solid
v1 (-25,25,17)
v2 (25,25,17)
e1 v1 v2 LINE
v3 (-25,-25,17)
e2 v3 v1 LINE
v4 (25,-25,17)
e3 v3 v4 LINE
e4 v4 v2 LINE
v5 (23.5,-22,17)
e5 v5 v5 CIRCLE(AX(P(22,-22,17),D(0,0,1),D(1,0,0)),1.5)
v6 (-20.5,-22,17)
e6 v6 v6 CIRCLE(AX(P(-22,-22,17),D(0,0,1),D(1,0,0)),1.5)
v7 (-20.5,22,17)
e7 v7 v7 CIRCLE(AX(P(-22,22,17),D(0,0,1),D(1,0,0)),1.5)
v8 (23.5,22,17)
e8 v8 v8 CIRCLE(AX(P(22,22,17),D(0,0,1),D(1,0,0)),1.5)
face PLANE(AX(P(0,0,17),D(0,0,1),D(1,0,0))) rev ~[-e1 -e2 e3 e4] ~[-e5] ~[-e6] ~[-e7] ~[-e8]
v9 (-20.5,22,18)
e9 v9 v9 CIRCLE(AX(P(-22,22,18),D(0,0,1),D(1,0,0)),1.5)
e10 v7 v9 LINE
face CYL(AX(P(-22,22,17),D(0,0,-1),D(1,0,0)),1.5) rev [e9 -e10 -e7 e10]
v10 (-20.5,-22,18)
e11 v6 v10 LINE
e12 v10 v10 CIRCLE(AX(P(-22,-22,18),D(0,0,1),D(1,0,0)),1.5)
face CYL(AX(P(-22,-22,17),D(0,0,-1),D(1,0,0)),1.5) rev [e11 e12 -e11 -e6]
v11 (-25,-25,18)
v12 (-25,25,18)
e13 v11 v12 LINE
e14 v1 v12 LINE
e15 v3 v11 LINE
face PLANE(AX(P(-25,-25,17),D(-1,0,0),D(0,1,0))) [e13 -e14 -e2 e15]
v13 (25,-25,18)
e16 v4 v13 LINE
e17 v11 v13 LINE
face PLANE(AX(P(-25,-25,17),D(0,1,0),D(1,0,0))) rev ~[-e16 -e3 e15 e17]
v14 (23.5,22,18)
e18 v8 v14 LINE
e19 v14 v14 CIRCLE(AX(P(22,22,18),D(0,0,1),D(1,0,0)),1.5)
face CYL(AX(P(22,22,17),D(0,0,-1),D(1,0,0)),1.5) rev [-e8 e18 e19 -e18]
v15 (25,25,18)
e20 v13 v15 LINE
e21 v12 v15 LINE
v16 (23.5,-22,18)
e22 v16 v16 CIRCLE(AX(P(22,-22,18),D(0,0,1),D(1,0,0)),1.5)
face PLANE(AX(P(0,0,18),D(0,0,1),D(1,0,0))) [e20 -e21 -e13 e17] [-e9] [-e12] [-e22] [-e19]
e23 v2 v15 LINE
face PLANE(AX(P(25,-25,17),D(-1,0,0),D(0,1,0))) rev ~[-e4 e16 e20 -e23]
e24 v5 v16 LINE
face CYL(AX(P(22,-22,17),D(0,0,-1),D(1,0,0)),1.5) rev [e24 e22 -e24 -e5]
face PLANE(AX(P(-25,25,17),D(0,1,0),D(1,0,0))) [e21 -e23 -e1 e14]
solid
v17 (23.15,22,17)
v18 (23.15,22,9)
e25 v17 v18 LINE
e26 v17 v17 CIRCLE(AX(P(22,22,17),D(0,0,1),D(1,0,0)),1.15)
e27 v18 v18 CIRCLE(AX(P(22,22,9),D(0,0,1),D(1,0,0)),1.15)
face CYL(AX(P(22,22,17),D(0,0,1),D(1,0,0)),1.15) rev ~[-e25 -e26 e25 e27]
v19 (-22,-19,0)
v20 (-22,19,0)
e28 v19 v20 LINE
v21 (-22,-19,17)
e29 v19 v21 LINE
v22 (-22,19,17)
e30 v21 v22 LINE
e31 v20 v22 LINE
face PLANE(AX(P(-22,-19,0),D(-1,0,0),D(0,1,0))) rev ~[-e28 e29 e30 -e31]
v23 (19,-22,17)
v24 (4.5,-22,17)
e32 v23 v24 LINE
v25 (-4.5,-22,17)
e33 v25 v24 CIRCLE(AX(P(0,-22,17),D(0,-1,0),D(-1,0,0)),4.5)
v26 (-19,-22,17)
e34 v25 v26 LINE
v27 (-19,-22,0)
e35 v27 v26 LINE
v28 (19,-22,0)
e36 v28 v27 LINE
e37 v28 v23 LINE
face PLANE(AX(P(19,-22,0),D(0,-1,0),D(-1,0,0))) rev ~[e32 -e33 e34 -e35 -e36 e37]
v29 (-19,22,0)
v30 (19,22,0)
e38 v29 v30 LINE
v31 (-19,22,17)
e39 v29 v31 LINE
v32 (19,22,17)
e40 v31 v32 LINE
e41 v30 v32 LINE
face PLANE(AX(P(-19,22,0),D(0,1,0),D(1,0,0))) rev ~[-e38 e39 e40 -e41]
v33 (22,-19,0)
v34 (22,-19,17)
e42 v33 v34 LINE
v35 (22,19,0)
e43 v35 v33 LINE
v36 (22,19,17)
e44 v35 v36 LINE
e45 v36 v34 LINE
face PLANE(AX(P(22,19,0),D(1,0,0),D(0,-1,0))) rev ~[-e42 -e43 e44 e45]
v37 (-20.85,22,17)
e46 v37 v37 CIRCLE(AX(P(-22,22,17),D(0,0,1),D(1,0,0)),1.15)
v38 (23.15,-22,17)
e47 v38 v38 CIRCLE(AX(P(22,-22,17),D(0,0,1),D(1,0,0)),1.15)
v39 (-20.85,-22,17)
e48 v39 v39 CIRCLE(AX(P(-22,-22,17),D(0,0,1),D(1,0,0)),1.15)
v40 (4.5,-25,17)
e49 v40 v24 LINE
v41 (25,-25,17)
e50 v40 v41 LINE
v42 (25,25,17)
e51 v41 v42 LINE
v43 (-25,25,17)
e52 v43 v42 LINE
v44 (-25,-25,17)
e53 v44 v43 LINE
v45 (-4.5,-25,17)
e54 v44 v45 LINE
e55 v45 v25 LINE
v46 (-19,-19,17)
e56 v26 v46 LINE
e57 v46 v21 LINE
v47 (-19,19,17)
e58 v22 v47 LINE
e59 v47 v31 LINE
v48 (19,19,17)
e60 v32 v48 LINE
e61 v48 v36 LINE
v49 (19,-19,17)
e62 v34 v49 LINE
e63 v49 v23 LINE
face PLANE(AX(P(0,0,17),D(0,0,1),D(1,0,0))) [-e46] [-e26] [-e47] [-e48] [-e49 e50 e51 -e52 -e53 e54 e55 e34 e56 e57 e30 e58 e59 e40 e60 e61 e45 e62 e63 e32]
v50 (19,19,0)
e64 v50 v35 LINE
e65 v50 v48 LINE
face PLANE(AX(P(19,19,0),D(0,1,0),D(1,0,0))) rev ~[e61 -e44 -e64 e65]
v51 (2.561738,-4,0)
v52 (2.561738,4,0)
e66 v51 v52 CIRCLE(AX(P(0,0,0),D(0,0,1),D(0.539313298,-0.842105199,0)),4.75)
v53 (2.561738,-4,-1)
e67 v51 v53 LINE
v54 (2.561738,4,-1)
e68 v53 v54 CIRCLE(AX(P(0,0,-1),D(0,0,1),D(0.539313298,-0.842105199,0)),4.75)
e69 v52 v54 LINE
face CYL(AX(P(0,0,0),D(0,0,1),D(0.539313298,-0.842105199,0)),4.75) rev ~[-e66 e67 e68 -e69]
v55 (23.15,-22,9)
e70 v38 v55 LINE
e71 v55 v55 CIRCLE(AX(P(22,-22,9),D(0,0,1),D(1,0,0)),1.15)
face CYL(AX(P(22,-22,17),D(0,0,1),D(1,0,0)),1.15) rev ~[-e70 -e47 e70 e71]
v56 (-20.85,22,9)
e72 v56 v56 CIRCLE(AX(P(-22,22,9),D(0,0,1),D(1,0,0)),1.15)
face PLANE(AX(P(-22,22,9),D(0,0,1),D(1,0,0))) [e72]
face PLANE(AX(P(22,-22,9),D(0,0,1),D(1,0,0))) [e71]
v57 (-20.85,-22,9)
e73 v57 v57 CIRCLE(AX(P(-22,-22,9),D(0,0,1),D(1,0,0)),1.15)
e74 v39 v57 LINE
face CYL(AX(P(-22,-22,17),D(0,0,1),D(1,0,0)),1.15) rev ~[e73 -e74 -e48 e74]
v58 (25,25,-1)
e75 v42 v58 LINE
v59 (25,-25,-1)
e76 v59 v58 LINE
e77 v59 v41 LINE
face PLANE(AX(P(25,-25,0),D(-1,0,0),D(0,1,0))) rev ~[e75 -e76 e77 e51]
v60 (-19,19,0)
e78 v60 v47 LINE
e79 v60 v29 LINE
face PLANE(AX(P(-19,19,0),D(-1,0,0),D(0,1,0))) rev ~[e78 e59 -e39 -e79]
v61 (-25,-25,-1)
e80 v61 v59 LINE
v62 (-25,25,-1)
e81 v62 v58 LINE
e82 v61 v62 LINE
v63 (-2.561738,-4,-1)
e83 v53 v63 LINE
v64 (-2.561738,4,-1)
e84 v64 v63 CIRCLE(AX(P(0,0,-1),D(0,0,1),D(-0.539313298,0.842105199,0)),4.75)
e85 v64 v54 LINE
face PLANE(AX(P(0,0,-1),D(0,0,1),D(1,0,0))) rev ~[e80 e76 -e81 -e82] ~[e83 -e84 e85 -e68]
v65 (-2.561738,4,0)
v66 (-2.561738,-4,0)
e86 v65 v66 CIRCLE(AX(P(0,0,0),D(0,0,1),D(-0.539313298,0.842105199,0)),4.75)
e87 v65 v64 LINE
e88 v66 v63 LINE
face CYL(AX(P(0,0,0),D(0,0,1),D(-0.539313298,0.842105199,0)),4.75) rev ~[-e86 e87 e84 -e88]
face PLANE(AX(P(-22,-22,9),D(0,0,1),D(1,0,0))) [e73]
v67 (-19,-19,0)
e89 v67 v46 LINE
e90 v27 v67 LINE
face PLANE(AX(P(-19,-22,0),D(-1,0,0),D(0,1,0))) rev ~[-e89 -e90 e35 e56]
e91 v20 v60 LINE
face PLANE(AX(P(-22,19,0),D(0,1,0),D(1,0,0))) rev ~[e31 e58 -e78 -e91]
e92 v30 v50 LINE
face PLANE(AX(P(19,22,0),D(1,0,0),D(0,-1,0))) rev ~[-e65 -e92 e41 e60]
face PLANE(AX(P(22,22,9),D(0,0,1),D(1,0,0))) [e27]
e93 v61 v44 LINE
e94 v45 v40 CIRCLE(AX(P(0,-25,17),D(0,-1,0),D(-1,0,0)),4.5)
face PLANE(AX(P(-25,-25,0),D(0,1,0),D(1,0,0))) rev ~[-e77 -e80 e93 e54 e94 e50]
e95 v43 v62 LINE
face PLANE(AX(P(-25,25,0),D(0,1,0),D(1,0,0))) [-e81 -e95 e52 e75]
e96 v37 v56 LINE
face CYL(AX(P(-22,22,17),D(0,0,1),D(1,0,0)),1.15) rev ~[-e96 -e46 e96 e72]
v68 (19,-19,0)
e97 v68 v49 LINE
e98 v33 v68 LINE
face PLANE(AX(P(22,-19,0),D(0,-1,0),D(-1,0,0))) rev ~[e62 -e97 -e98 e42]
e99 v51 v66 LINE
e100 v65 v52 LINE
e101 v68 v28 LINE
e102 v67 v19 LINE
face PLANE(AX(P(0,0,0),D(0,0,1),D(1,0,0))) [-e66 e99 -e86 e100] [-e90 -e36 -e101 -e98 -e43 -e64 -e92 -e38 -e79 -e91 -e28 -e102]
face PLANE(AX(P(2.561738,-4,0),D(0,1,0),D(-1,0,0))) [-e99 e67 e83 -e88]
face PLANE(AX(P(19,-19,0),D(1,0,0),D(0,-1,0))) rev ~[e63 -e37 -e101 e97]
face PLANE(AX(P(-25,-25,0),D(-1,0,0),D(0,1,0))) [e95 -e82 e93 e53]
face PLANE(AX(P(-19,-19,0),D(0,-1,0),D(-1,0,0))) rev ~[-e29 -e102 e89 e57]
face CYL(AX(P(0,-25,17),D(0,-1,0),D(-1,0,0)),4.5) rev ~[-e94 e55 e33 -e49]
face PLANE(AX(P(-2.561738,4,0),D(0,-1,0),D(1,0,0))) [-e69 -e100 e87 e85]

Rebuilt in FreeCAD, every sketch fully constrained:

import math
import FreeCAD as App
import Part
import Sketcher

V = App.Vector
Q = App.Units.Quantity

doc = App.newDocument("Part")
body = doc.addObject("PartDesign::Body", "Body")

sketch1 = body.newObject("Sketcher::SketchObject", "Sketch")
sketch1.AttachmentSupport = (doc.getObject("XY_Plane"), [""])
sketch1.MapMode = "FlatFace"
sketch1.addGeometry(Part.LineSegment(V(-25, 25, 0), V(-25, -25, 0)), False)
sketch1.addGeometry(Part.LineSegment(V(-25, -25, 0), V(25, -25, 0)), False)
sketch1.addGeometry(Part.LineSegment(V(25, -25, 0), V(25, 25, 0)), False)
sketch1.addGeometry(Part.LineSegment(V(25, 25, 0), V(-25, 25, 0)), False)
sketch1.addGeometry(Part.ArcOfCircle(Part.Circle(V(0, 0, 0), V(0, 0, 1), 4.75), math.radians(122.636904), math.radians(237.363096)), False)
sketch1.addGeometry(Part.LineSegment(V(-2.561738, 4, 0), V(2.561738, 4, 0)), False)
sketch1.addGeometry(Part.ArcOfCircle(Part.Circle(V(0, 0, 0), V(0, 0, 1), 4.75), math.radians(-57.363096), math.radians(57.363096)), False)
sketch1.addGeometry(Part.LineSegment(V(2.561738, -4, 0), V(-2.561738, -4, 0)), False)
sketch1.addConstraint(Sketcher.Constraint("Coincident", 0, 2, 1, 1))
sketch1.addConstraint(Sketcher.Constraint("Coincident", 1, 2, 2, 1))
sketch1.addConstraint(Sketcher.Constraint("Coincident", 2, 2, 3, 1))
sketch1.addConstraint(Sketcher.Constraint("Coincident", 3, 2, 0, 1))
sketch1.addConstraint(Sketcher.Constraint("Coincident", 4, 1, 5, 1))
sketch1.addConstraint(Sketcher.Constraint("Coincident", 5, 2, 6, 2))
sketch1.addConstraint(Sketcher.Constraint("Coincident", 6, 1, 7, 1))
sketch1.addConstraint(Sketcher.Constraint("Coincident", 7, 2, 4, 2))
sketch1.addConstraint(Sketcher.Constraint("Vertical", 0))
sketch1.addConstraint(Sketcher.Constraint("Horizontal", 1))
sketch1.addConstraint(Sketcher.Constraint("Vertical", 2))
sketch1.addConstraint(Sketcher.Constraint("Horizontal", 3))
sketch1.addConstraint(Sketcher.Constraint("Horizontal", 5))
sketch1.addConstraint(Sketcher.Constraint("Horizontal", 7))
sketch1.addConstraint(Sketcher.Constraint("Coincident", 4, 3, -1, 1))
sketch1.addConstraint(Sketcher.Constraint("Coincident", 6, 3, -1, 1))
sketch1.addConstraint(Sketcher.Constraint("Equal", 4, 6))
sketch1.addConstraint(Sketcher.Constraint("Symmetric", 0, 2, 2, 2, -1, 1))
sketch1.addConstraint(Sketcher.Constraint("Vertical", 5, 2, 6, 1))
sketch1.addConstraint(Sketcher.Constraint("Equal", 3, 0))
sketch1.addConstraint(Sketcher.Constraint("DistanceX", 1, 1, 1, 2, Q("50 mm")))
sketch1.addConstraint(Sketcher.Constraint("Radius", 4, Q("4.75 mm")))
sketch1.addConstraint(Sketcher.Constraint("DistanceY", -1, 1, 4, 1, Q("4 mm")))
pad1 = body.newObject("PartDesign::Pad", "Pad")
pad1.Profile = sketch1
pad1.Length = 1
pad1.Reversed = True

sketch2 = body.newObject("Sketcher::SketchObject", "Sketch001")
sketch2.AttachmentSupport = (doc.getObject("XY_Plane"), [""])
sketch2.MapMode = "FlatFace"
sketch2.addGeometry(Part.LineSegment(V(-25, 25, 0), V(-25, -25, 0)), False)
sketch2.addGeometry(Part.LineSegment(V(-25, -25, 0), V(25, -25, 0)), False)
sketch2.addGeometry(Part.LineSegment(V(25, -25, 0), V(25, 25, 0)), False)
sketch2.addGeometry(Part.LineSegment(V(25, 25, 0), V(-25, 25, 0)), False)
sketch2.addGeometry(Part.LineSegment(V(-19, 19, 0), V(-19, 22, 0)), False)
sketch2.addGeometry(Part.LineSegment(V(-19, 22, 0), V(19, 22, 0)), False)
sketch2.addGeometry(Part.LineSegment(V(19, 22, 0), V(19, 19, 0)), False)
sketch2.addGeometry(Part.LineSegment(V(19, 19, 0), V(22, 19, 0)), False)
sketch2.addGeometry(Part.LineSegment(V(22, 19, 0), V(22, -19, 0)), False)
sketch2.addGeometry(Part.LineSegment(V(22, -19, 0), V(19, -19, 0)), False)
sketch2.addGeometry(Part.LineSegment(V(19, -19, 0), V(19, -22, 0)), False)
sketch2.addGeometry(Part.LineSegment(V(19, -22, 0), V(-19, -22, 0)), False)
sketch2.addGeometry(Part.LineSegment(V(-19, -22, 0), V(-19, -19, 0)), False)
sketch2.addGeometry(Part.LineSegment(V(-19, -19, 0), V(-22, -19, 0)), False)
sketch2.addGeometry(Part.LineSegment(V(-22, -19, 0), V(-22, 19, 0)), False)
sketch2.addGeometry(Part.LineSegment(V(-22, 19, 0), V(-19, 19, 0)), False)
sketch2.addConstraint(Sketcher.Constraint("Coincident", 0, 2, 1, 1))
sketch2.addConstraint(Sketcher.Constraint("Coincident", 1, 2, 2, 1))
sketch2.addConstraint(Sketcher.Constraint("Coincident", 2, 2, 3, 1))
sketch2.addConstraint(Sketcher.Constraint("Coincident", 3, 2, 0, 1))
sketch2.addConstraint(Sketcher.Constraint("Coincident", 4, 2, 5, 1))
sketch2.addConstraint(Sketcher.Constraint("Coincident", 5, 2, 6, 1))
sketch2.addConstraint(Sketcher.Constraint("Coincident", 6, 2, 7, 1))
sketch2.addConstraint(Sketcher.Constraint("Coincident", 7, 2, 8, 1))
sketch2.addConstraint(Sketcher.Constraint("Coincident", 8, 2, 9, 1))
sketch2.addConstraint(Sketcher.Constraint("Coincident", 9, 2, 10, 1))
sketch2.addConstraint(Sketcher.Constraint("Coincident", 10, 2, 11, 1))
sketch2.addConstraint(Sketcher.Constraint("Coincident", 11, 2, 12, 1))
sketch2.addConstraint(Sketcher.Constraint("Coincident", 12, 2, 13, 1))
sketch2.addConstraint(Sketcher.Constraint("Coincident", 13, 2, 14, 1))
sketch2.addConstraint(Sketcher.Constraint("Coincident", 14, 2, 15, 1))
sketch2.addConstraint(Sketcher.Constraint("Coincident", 15, 2, 4, 1))
sketch2.addConstraint(Sketcher.Constraint("Vertical", 0))
sketch2.addConstraint(Sketcher.Constraint("Horizontal", 1))
sketch2.addConstraint(Sketcher.Constraint("Vertical", 2))
sketch2.addConstraint(Sketcher.Constraint("Horizontal", 3))
sketch2.addConstraint(Sketcher.Constraint("Vertical", 4))
sketch2.addConstraint(Sketcher.Constraint("Horizontal", 5))
sketch2.addConstraint(Sketcher.Constraint("Vertical", 6))
sketch2.addConstraint(Sketcher.Constraint("Horizontal", 7))
sketch2.addConstraint(Sketcher.Constraint("Vertical", 8))
sketch2.addConstraint(Sketcher.Constraint("Horizontal", 9))
sketch2.addConstraint(Sketcher.Constraint("Vertical", 10))
sketch2.addConstraint(Sketcher.Constraint("Horizontal", 11))
sketch2.addConstraint(Sketcher.Constraint("Vertical", 12))
sketch2.addConstraint(Sketcher.Constraint("Horizontal", 13))
sketch2.addConstraint(Sketcher.Constraint("Vertical", 14))
sketch2.addConstraint(Sketcher.Constraint("Horizontal", 15))
sketch2.addConstraint(Sketcher.Constraint("Symmetric", 0, 2, 2, 2, -1, 1))
sketch2.addConstraint(Sketcher.Constraint("Symmetric", 4, 2, 10, 2, -1, 1))
sketch2.addConstraint(Sketcher.Constraint("Symmetric", 6, 2, 12, 2, -1, 1))
sketch2.addConstraint(Sketcher.Constraint("Symmetric", 8, 2, 14, 2, -1, 1))
sketch2.addConstraint(Sketcher.Constraint("Symmetric", 9, 2, 12, 2, -2))
sketch2.addConstraint(Sketcher.Constraint("Equal", 3, 0))
sketch2.addConstraint(Sketcher.Constraint("Equal", 15, 4))
sketch2.addConstraint(Sketcher.Constraint("Equal", 11, 8))
sketch2.addConstraint(Sketcher.Constraint("DistanceX", 1, 1, 1, 2, Q("50 mm")))
sketch2.addConstraint(Sketcher.Constraint("DistanceX", 5, 1, 5, 2, Q("38 mm")))
sketch2.addConstraint(Sketcher.Constraint("DistanceX", 7, 1, 7, 2, Q("3 mm")))
pad2 = body.newObject("PartDesign::Pad", "Pad001")
pad2.Profile = sketch2
pad2.Length = 17

sketch3 = body.newObject("Sketcher::SketchObject", "Sketch002")
sketch3.AttachmentSupport = (doc.getObject("XY_Plane"), [""])
sketch3.MapMode = "FlatFace"
sketch3.AttachmentOffset = App.Placement(V(0, 0, 17), App.Rotation())
sketch3.addGeometry(Part.Circle(V(-22, 22, 0), V(0, 0, 1), 1.15), False)
sketch3.addGeometry(Part.Circle(V(22, 22, 0), V(0, 0, 1), 1.15), False)
sketch3.addGeometry(Part.Circle(V(-22, -22, 0), V(0, 0, 1), 1.15), False)
sketch3.addGeometry(Part.Circle(V(22, -22, 0), V(0, 0, 1), 1.15), False)
sketch3.addConstraint(Sketcher.Constraint("Equal", 0, 1))
sketch3.addConstraint(Sketcher.Constraint("Equal", 1, 2))
sketch3.addConstraint(Sketcher.Constraint("Equal", 2, 3))
sketch3.addConstraint(Sketcher.Constraint("Symmetric", 1, 3, 2, 3, -1, 1))
sketch3.addConstraint(Sketcher.Constraint("Symmetric", 0, 3, 3, 3, -1, 1))
sketch3.addConstraint(Sketcher.Constraint("Symmetric", 0, 3, 1, 3, -2))
sketch3.addConstraint(Sketcher.Constraint("Diameter", 0, Q("2.3 mm")))
sketch3.addConstraint(Sketcher.Constraint("DistanceX", 0, 3, -1, 1, Q("22 mm")))
sketch3.addConstraint(Sketcher.Constraint("DistanceY", -1, 1, 0, 3, Q("22 mm")))
pocket1 = body.newObject("PartDesign::Pocket", "Pocket")
pocket1.Profile = sketch3
pocket1.Length = 8

sketch4 = body.newObject("Sketcher::SketchObject", "Sketch003")
sketch4.AttachmentSupport = (doc.getObject("XZ_Plane"), [""])
sketch4.MapMode = "FlatFace"
sketch4.AttachmentOffset = App.Placement(V(0, 0, 25), App.Rotation())
sketch4.addGeometry(Part.ArcOfCircle(Part.Circle(V(0, 17, 0), V(0, 0, 1), 4.5), math.radians(180), math.radians(360)), False)
sketch4.addGeometry(Part.LineSegment(V(4.5, 17, 0), V(-4.5, 17, 0)), False)
sketch4.addConstraint(Sketcher.Constraint("Coincident", 0, 1, 1, 2))
sketch4.addConstraint(Sketcher.Constraint("Coincident", 1, 1, 0, 2))
sketch4.addConstraint(Sketcher.Constraint("Horizontal", 1))
sketch4.addConstraint(Sketcher.Constraint("PointOnObject", 0, 3, -2))
sketch4.addConstraint(Sketcher.Constraint("Radius", 0, Q("4.5 mm")))
sketch4.addConstraint(Sketcher.Constraint("DistanceY", -1, 1, 0, 3, Q("17 mm")))
sketch4.addConstraint(Sketcher.Constraint("DistanceY", -1, 1, 0, 1, Q("17 mm")))
pocket2 = body.newObject("PartDesign::Pocket", "Pocket001")
pocket2.Profile = sketch4
pocket2.Length = 3
body2 = doc.addObject("PartDesign::Body", "Body001")

sketch5 = body2.newObject("Sketcher::SketchObject", "Sketch004")
sketch5.AttachmentSupport = (doc.getObject("XY_Plane001"), [""])
sketch5.MapMode = "FlatFace"
sketch5.AttachmentOffset = App.Placement(V(0, 0, 17), App.Rotation())
sketch5.addGeometry(Part.LineSegment(V(-25, 25, 0), V(-25, -25, 0)), False)
sketch5.addGeometry(Part.LineSegment(V(-25, -25, 0), V(25, -25, 0)), False)
sketch5.addGeometry(Part.LineSegment(V(25, -25, 0), V(25, 25, 0)), False)
sketch5.addGeometry(Part.LineSegment(V(25, 25, 0), V(-25, 25, 0)), False)
sketch5.addGeometry(Part.Circle(V(-22, -22, 0), V(0, 0, 1), 1.5), False)
sketch5.addGeometry(Part.Circle(V(22, -22, 0), V(0, 0, 1), 1.5), False)
sketch5.addGeometry(Part.Circle(V(-22, 22, 0), V(0, 0, 1), 1.5), False)
sketch5.addGeometry(Part.Circle(V(22, 22, 0), V(0, 0, 1), 1.5), False)
sketch5.addConstraint(Sketcher.Constraint("Coincident", 0, 2, 1, 1))
sketch5.addConstraint(Sketcher.Constraint("Coincident", 1, 2, 2, 1))
sketch5.addConstraint(Sketcher.Constraint("Coincident", 2, 2, 3, 1))
sketch5.addConstraint(Sketcher.Constraint("Coincident", 3, 2, 0, 1))
sketch5.addConstraint(Sketcher.Constraint("Vertical", 0))
sketch5.addConstraint(Sketcher.Constraint("Horizontal", 1))
sketch5.addConstraint(Sketcher.Constraint("Vertical", 2))
sketch5.addConstraint(Sketcher.Constraint("Horizontal", 3))
sketch5.addConstraint(Sketcher.Constraint("Equal", 4, 5))
sketch5.addConstraint(Sketcher.Constraint("Equal", 5, 6))
sketch5.addConstraint(Sketcher.Constraint("Equal", 6, 7))
sketch5.addConstraint(Sketcher.Constraint("Symmetric", 5, 3, 6, 3, -1, 1))
sketch5.addConstraint(Sketcher.Constraint("Symmetric", 4, 3, 7, 3, -1, 1))
sketch5.addConstraint(Sketcher.Constraint("Symmetric", 0, 2, 2, 2, -1, 1))
sketch5.addConstraint(Sketcher.Constraint("Symmetric", 4, 3, 5, 3, -2))
sketch5.addConstraint(Sketcher.Constraint("Equal", 3, 0))
sketch5.addConstraint(Sketcher.Constraint("Diameter", 4, Q("3 mm")))
sketch5.addConstraint(Sketcher.Constraint("DistanceX", 1, 1, 1, 2, Q("50 mm")))
sketch5.addConstraint(Sketcher.Constraint("DistanceX", 4, 3, -1, 1, Q("22 mm")))
sketch5.addConstraint(Sketcher.Constraint("DistanceY", 4, 3, -1, 1, Q("22 mm")))
pad3 = body2.newObject("PartDesign::Pad", "Pad002")
pad3.Profile = sketch5
pad3.Length = 1

doc.recompute()
